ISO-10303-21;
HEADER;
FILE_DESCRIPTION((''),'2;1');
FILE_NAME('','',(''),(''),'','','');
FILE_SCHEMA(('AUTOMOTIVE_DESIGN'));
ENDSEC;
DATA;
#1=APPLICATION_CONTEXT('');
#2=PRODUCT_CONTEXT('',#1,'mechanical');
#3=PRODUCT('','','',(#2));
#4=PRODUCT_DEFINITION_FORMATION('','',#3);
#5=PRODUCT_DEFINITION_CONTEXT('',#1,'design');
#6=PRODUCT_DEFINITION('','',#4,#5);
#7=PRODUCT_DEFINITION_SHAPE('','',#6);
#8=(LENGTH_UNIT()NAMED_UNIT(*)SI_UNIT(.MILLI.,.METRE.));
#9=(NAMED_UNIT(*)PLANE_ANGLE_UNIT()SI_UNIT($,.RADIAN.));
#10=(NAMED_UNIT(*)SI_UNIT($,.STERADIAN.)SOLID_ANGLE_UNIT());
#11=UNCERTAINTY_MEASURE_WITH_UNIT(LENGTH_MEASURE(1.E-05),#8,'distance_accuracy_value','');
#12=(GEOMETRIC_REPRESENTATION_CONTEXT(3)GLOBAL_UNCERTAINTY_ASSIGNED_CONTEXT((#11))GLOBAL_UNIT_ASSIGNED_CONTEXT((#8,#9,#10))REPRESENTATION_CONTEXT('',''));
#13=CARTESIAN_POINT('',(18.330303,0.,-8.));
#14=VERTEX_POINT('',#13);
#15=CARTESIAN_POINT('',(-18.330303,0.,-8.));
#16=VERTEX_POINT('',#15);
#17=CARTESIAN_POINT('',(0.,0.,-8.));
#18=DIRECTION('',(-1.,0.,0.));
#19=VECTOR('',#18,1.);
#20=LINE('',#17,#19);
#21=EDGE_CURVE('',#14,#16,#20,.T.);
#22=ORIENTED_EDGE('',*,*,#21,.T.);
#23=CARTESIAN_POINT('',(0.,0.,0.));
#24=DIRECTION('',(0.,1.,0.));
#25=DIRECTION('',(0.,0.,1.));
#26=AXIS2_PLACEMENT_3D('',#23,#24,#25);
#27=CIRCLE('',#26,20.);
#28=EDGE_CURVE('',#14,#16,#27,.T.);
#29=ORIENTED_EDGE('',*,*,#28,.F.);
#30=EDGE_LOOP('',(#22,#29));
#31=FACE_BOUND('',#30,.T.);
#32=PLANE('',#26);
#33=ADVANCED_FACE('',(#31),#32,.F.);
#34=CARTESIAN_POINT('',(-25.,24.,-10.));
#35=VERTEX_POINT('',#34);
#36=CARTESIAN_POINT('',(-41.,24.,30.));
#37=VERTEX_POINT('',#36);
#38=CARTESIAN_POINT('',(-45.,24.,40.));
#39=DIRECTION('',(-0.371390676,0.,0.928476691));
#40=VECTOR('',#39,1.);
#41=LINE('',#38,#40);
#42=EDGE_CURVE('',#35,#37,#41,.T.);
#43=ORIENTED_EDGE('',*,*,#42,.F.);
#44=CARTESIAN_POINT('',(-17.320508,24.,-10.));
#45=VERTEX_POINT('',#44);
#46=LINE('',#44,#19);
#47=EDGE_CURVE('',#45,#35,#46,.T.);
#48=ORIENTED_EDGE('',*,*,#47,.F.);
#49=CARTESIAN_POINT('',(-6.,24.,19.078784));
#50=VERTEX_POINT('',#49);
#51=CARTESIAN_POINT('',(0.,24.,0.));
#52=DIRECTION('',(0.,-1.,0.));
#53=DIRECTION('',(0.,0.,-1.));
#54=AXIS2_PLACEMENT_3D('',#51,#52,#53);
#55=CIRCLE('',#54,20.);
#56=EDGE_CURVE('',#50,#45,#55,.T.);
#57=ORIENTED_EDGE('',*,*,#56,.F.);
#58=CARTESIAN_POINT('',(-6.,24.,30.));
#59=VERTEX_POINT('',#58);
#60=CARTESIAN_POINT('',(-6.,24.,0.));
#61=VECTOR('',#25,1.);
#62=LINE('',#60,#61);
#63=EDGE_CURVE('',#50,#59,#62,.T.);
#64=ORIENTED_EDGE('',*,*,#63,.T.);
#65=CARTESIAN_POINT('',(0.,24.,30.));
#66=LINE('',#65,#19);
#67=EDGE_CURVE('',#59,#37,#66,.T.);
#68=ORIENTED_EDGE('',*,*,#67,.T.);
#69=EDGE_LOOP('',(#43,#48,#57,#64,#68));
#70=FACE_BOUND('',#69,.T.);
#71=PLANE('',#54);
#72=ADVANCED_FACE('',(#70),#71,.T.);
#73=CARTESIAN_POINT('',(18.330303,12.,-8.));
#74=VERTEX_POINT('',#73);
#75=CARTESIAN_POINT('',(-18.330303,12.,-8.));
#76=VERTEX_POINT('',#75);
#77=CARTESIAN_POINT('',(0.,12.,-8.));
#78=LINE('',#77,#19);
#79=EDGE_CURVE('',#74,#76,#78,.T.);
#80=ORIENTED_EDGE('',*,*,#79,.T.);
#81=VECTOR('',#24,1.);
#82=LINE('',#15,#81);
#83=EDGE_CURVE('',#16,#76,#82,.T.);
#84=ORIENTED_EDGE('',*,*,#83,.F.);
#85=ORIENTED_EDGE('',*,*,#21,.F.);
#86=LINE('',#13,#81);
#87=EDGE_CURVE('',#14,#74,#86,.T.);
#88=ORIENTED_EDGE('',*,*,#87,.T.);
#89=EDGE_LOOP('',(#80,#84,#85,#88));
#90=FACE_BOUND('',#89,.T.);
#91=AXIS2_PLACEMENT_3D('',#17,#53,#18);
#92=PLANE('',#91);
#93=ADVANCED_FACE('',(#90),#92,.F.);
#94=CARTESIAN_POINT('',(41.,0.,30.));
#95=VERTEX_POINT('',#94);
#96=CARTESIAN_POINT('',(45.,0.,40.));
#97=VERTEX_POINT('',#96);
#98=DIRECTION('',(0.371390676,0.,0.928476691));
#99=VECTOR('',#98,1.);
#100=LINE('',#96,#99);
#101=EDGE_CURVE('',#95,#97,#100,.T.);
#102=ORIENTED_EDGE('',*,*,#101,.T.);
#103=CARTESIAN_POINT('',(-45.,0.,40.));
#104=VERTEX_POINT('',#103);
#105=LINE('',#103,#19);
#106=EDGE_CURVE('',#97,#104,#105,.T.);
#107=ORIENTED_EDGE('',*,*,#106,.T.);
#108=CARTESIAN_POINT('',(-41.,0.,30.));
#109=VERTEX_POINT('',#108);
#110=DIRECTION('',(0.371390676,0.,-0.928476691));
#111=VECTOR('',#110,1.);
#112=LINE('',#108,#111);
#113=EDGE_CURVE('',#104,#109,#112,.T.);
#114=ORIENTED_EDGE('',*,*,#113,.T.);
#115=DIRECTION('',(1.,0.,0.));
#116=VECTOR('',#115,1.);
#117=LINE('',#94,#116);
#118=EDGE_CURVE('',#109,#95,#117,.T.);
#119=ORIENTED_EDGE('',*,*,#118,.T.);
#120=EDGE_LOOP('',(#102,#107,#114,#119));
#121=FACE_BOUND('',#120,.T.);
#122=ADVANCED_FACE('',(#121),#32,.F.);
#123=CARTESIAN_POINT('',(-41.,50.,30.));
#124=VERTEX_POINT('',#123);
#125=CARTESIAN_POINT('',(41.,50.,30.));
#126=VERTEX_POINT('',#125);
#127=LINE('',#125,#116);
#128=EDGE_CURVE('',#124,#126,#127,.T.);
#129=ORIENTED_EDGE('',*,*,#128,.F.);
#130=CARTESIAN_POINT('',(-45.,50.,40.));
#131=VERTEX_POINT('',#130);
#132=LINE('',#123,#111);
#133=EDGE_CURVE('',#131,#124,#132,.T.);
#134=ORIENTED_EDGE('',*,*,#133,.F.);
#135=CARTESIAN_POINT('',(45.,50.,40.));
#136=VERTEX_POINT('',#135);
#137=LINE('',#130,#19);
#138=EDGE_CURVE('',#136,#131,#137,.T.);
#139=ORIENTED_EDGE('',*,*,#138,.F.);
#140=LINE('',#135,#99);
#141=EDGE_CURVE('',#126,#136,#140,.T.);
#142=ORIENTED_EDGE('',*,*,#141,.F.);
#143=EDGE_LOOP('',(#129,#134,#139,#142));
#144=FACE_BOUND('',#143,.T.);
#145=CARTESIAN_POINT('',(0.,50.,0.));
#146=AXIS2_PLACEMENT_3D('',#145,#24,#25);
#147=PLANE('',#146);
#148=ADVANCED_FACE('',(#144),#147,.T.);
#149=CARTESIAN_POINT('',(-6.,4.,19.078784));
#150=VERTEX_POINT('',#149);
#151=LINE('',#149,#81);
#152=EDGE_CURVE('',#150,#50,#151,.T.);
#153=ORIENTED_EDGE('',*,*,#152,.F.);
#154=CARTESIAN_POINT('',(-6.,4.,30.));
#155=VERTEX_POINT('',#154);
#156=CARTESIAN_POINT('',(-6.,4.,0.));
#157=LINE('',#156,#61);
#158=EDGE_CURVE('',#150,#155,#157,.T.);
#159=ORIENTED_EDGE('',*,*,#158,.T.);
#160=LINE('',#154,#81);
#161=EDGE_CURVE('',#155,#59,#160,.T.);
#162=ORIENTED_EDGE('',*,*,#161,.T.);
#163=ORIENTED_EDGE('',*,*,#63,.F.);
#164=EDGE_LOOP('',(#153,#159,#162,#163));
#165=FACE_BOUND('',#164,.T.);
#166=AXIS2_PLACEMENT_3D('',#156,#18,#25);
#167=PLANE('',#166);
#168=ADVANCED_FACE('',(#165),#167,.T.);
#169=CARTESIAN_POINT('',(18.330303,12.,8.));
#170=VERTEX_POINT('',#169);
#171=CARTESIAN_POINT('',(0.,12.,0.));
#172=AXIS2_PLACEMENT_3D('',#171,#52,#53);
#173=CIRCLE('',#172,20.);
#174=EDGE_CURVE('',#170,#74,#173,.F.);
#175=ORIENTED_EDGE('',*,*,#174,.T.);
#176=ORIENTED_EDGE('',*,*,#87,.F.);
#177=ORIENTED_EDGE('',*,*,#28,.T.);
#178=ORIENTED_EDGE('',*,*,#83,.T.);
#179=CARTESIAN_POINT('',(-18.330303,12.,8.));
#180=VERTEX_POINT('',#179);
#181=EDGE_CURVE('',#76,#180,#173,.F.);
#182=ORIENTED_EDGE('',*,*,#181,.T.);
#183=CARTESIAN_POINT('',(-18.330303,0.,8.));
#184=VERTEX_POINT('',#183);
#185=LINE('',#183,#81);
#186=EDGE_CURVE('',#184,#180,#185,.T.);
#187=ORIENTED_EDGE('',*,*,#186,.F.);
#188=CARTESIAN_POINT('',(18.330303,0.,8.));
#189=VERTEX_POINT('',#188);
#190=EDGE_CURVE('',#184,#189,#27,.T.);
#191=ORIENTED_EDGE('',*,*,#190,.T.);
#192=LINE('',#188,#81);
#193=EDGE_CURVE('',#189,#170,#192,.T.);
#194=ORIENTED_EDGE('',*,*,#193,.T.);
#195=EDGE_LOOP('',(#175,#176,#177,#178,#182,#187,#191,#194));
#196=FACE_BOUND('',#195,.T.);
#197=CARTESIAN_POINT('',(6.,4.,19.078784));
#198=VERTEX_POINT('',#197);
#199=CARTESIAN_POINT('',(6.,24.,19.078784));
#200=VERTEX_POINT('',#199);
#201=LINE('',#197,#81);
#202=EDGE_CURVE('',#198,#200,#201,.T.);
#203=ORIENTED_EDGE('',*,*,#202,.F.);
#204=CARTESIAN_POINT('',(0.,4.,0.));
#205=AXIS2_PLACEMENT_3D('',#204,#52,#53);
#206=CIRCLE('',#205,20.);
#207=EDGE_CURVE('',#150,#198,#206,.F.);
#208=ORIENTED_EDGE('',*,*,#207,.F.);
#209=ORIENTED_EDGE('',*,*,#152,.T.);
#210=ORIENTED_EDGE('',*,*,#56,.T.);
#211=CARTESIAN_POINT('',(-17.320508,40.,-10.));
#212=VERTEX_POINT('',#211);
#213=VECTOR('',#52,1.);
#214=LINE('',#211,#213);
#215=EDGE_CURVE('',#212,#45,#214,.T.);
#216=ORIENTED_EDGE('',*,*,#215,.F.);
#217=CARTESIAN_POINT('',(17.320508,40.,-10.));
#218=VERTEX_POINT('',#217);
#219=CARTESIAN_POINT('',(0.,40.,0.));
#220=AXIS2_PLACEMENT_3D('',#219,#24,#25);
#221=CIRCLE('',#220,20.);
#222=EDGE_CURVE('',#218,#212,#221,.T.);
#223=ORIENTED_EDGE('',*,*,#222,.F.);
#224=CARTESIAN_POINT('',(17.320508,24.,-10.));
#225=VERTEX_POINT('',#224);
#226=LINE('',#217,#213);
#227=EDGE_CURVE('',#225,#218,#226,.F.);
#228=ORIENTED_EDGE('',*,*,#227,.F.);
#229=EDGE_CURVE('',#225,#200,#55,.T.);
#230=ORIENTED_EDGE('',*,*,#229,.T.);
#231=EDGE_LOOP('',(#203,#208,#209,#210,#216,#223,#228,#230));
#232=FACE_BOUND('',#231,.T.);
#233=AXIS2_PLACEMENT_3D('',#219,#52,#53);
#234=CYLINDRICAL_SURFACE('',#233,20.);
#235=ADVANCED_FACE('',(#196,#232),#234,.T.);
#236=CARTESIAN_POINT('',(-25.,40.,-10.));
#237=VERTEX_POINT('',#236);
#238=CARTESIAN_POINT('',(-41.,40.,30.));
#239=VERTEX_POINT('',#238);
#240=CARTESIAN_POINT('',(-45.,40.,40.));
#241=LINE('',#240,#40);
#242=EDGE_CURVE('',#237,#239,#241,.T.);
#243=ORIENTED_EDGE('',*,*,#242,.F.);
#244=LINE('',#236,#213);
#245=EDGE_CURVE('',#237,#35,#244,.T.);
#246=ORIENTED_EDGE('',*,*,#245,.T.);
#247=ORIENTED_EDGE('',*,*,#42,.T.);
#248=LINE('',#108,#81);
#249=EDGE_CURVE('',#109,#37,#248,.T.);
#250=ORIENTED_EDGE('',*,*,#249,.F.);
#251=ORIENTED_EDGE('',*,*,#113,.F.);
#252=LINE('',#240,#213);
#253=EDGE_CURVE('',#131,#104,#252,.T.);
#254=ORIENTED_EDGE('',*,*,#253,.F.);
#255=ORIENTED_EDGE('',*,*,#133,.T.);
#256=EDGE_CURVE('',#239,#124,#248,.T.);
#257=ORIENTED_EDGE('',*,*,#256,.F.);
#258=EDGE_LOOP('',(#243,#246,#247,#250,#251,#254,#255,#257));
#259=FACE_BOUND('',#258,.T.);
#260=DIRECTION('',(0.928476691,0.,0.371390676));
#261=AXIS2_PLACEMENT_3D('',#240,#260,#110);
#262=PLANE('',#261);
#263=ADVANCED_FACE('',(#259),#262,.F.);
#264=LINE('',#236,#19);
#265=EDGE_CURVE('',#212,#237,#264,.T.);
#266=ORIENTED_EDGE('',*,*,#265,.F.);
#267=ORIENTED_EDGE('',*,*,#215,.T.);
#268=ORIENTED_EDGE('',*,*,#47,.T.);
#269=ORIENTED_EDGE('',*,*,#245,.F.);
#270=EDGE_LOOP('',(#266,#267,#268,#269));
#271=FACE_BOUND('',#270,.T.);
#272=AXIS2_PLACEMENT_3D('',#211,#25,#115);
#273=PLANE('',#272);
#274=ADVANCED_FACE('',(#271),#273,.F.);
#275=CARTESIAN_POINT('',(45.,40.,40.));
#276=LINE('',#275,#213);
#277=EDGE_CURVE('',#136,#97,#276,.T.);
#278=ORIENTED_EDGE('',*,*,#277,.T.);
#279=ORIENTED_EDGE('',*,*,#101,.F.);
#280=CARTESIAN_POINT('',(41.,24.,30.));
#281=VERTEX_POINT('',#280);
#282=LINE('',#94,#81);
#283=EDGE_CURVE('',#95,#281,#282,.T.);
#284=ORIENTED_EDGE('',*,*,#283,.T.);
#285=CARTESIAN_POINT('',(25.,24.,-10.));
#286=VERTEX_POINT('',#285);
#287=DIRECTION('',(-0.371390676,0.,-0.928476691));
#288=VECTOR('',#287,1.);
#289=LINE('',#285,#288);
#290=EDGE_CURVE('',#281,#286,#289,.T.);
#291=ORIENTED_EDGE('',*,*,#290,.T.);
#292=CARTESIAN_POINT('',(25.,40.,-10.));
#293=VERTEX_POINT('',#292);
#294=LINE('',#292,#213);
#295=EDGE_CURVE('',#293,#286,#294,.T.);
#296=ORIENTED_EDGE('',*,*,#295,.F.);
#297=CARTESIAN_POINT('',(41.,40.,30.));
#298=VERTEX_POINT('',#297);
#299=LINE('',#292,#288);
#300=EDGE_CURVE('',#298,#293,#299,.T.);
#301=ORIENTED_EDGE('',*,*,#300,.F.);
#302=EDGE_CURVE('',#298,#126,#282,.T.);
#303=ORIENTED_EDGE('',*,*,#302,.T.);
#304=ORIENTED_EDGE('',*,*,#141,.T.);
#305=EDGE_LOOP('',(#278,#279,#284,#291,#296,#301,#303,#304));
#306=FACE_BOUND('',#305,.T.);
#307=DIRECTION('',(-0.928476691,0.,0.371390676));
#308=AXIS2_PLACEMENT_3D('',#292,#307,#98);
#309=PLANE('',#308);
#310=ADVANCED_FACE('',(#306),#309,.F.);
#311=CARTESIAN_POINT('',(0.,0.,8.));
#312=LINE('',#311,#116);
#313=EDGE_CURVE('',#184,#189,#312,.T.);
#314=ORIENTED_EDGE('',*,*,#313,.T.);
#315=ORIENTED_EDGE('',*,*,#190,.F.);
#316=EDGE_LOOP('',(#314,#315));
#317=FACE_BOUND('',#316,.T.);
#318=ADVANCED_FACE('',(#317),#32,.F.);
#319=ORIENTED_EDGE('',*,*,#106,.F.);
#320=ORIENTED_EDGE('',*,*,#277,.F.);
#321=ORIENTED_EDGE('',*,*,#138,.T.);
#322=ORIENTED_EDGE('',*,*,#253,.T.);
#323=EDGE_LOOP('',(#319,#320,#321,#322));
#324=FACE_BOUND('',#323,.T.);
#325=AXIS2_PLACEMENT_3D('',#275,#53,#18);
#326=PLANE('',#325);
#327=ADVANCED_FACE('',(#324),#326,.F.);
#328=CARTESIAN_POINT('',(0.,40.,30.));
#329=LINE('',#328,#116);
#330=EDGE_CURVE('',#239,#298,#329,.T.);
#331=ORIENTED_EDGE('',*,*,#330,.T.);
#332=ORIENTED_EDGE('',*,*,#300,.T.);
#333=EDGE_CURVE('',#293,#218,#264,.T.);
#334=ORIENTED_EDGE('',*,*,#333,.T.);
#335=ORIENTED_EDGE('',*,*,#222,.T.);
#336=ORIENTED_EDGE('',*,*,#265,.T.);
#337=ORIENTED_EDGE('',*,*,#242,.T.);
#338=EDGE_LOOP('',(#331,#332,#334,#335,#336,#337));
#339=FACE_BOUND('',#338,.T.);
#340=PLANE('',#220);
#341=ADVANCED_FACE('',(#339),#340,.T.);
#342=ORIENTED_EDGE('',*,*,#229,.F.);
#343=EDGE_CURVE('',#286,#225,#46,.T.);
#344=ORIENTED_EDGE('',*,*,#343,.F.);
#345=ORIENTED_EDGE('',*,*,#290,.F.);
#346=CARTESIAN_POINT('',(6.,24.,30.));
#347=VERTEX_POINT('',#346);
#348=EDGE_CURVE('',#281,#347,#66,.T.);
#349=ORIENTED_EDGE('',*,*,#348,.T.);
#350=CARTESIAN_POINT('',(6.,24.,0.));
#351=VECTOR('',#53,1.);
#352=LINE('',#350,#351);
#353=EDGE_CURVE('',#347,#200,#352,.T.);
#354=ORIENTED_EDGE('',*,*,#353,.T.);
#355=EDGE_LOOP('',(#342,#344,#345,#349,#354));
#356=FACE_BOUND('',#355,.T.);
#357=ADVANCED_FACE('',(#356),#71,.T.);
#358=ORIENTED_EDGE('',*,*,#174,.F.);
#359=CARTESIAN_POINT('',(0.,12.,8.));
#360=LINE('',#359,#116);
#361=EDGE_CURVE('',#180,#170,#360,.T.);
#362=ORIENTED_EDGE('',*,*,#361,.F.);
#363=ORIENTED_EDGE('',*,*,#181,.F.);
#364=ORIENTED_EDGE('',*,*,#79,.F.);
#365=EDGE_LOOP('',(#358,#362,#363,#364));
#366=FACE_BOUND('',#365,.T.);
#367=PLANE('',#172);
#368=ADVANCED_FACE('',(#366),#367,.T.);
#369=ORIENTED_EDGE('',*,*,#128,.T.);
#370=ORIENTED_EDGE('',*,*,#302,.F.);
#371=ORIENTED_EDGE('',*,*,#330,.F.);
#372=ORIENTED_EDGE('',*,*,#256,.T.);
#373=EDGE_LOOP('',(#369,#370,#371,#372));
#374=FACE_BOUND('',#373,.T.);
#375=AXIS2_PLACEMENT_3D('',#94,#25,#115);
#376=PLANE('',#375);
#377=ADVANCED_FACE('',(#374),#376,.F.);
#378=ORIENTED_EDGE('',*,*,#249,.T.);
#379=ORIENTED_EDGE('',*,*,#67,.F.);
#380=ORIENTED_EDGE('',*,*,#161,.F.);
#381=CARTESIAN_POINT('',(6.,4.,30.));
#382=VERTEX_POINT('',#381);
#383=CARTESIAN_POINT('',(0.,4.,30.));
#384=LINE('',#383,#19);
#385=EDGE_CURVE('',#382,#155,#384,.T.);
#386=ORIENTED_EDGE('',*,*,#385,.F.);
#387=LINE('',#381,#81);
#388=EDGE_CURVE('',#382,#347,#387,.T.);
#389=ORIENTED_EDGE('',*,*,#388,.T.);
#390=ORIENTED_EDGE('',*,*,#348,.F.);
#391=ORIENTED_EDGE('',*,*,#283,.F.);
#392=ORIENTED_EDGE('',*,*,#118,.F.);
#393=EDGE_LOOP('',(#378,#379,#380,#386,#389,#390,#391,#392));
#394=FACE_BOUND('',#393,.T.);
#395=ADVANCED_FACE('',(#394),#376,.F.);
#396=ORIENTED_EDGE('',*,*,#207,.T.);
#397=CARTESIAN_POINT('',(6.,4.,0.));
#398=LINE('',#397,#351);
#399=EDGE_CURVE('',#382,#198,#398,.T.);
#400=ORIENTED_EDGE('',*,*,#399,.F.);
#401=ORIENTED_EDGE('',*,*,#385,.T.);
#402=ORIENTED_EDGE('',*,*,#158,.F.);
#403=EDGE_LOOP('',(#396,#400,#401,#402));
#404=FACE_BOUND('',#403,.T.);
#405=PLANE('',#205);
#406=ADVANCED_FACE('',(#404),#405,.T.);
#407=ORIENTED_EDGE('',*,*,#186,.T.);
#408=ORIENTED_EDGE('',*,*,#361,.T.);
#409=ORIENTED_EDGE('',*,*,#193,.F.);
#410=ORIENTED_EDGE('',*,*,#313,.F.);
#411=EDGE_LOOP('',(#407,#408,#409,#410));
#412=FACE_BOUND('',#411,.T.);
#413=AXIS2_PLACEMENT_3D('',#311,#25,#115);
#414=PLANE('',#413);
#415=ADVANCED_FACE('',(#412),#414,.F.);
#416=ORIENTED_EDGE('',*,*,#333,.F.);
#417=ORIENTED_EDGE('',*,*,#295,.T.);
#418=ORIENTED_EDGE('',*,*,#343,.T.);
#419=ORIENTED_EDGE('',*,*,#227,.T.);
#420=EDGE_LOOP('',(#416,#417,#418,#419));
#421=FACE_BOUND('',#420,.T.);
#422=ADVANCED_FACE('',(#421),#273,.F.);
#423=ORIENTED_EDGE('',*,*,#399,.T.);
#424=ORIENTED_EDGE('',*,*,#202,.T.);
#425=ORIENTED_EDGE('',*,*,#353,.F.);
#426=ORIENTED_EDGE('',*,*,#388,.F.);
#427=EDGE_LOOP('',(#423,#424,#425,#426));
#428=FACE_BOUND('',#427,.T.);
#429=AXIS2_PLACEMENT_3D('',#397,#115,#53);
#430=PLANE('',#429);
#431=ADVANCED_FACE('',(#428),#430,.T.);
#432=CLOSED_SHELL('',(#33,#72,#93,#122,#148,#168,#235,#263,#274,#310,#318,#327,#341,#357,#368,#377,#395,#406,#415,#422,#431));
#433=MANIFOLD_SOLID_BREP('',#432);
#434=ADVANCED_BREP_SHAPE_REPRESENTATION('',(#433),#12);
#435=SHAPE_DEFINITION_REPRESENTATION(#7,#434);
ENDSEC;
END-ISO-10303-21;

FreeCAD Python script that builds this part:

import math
import FreeCAD as App
import Part
import Sketcher
from FreeCAD import Vector
Q = App.Units.Quantity

doc = App.newDocument("Part")
body = doc.addObject("PartDesign::Body", "Body")

sketch1 = doc.addObject("Sketcher::SketchObject", "Sketch")
body.addObject(sketch1)
sketch1.AttachmentSupport = (doc.XZ_Plane, [""])
sketch1.MapMode = "FlatFace"
sketch1.addGeometry(Part.Circle(Vector(0, 0, 0), Vector(0, 0, 1), 20), False)
sketch1.addConstraint([
    Sketcher.Constraint("Coincident", 0, 3, -1, 1),
    Sketcher.Constraint("Diameter", 0, Q("40 mm")),
])
pad1 = doc.addObject("PartDesign::Pad", "Pad")
body.addObject(pad1)
pad1.Profile = sketch1
pad1.Length = 40
pad1.Reversed = True

sketch2 = doc.addObject("Sketcher::SketchObject", "Sketch001")
body.addObject(sketch2)
sketch2.AttachmentSupport = (doc.XZ_Plane, [""])
sketch2.MapMode = "FlatFace"
sketch2.AttachmentOffset = App.Placement(Vector(0, 0, -24), App.Rotation())
sketch2.addGeometry([
    Part.LineSegment(Vector(45, 40, 0), Vector(25, -10, 0)),
    Part.LineSegment(Vector(25, -10, 0), Vector(-25, -10, 0)),
    Part.LineSegment(Vector(-25, -10, 0), Vector(-45, 40, 0)),
    Part.LineSegment(Vector(-45, 40, 0), Vector(45, 40, 0)),
], False)
sketch2.addConstraint([
    Sketcher.Constraint("Coincident", 0, 2, 1, 1),
    Sketcher.Constraint("Coincident", 1, 2, 2, 1),
    Sketcher.Constraint("Coincident", 2, 2, 3, 1),
    Sketcher.Constraint("Coincident", 3, 2, 0, 1),
    Sketcher.Constraint("Horizontal", 1),
    Sketcher.Constraint("Horizontal", 3),
    Sketcher.Constraint("Equal", 0, 2),
    Sketcher.Constraint("DistanceX", 1, 2, 1, 1, Q("50 mm")),
    Sketcher.Constraint("DistanceX", 3, 1, 3, 2, Q("90 mm")),
    Sketcher.Constraint("DistanceX", -1, 1, 0, 2, Q("25 mm")),
    Sketcher.Constraint("DistanceY", 0, 2, -1, 1, Q("10 mm")),
    Sketcher.Constraint("DistanceY", -1, 1, 2, 2, Q("40 mm")),
])
pad2 = doc.addObject("PartDesign::Pad", "Pad001")
body.addObject(pad2)
pad2.Profile = sketch2
pad2.Length = 16
pad2.Reversed = True

sketch3 = doc.addObject("Sketcher::SketchObject", "Sketch002")
body.addObject(sketch3)
sketch3.AttachmentSupport = (doc.XZ_Plane, [""])
sketch3.MapMode = "FlatFace"
sketch3.AttachmentOffset = App.Placement(Vector(0, 0, -50), App.Rotation())
sketch3.addGeometry([
    Part.LineSegment(Vector(-41, 30, 0), Vector(41, 30, 0)),
    Part.LineSegment(Vector(41, 30, 0), Vector(45, 40, 0)),
    Part.LineSegment(Vector(45, 40, 0), Vector(-45, 40, 0)),
    Part.LineSegment(Vector(-45, 40, 0), Vector(-41, 30, 0)),
], False)
sketch3.addConstraint([
    Sketcher.Constraint("Coincident", 0, 2, 1, 1),
    Sketcher.Constraint("Coincident", 1, 2, 2, 1),
    Sketcher.Constraint("Coincident", 2, 2, 3, 1),
    Sketcher.Constraint("Coincident", 3, 2, 0, 1),
    Sketcher.Constraint("Horizontal", 0),
    Sketcher.Constraint("Horizontal", 2),
    Sketcher.Constraint("Equal", 1, 3),
    Sketcher.Constraint("DistanceX", 0, 1, 0, 2, Q("82 mm")),
    Sketcher.Constraint("DistanceX", 2, 2, 2, 1, Q("90 mm")),
    Sketcher.Constraint("DistanceX", -1, 1, 0, 2, Q("41 mm")),
    Sketcher.Constraint("DistanceY", -1, 1, 0, 2, Q("30 mm")),
    Sketcher.Constraint("DistanceY", -1, 1, 1, 2, Q("40 mm")),
])
pad3 = doc.addObject("PartDesign::Pad", "Pad002")
body.addObject(pad3)
pad3.Profile = sketch3
pad3.Length = 50

sketch4 = doc.addObject("Sketcher::SketchObject", "Sketch003")
body.addObject(sketch4)
sketch4.AttachmentSupport = (doc.XZ_Plane, [""])
sketch4.MapMode = "FlatFace"
sketch4.AttachmentOffset = App.Placement(Vector(0, 0, -24), App.Rotation())
sketch4.addGeometry([
    Part.LineSegment(Vector(6, 19, 0), Vector(6, 30, 0)),
    Part.LineSegment(Vector(6, 30, 0), Vector(-6, 30, 0)),
    Part.LineSegment(Vector(-6, 30, 0), Vector(-6, 19, 0)),
    Part.ArcOfCircle(Part.Circle(Vector(0, 0, 0), Vector(0, 0, 1), 20), math.radians(73), math.radians(107)),
], False)
sketch4.addConstraint([
    Sketcher.Constraint("Coincident", 0, 2, 1, 1),
    Sketcher.Constraint("Coincident", 1, 2, 2, 1),
    Sketcher.Constraint("Coincident", 2, 2, 3, 2),
    Sketcher.Constraint("Coincident", 3, 1, 0, 1),
    Sketcher.Constraint("Vertical", 0),
    Sketcher.Constraint("Horizontal", 1),
    Sketcher.Constraint("Vertical", 2),
    Sketcher.Constraint("Coincident", 3, 3, -1, 1),
    Sketcher.Constraint("Horizontal", 2, 2, 3, 1),
    Sketcher.Constraint("Radius", 3, Q("20 mm")),
    Sketcher.Constraint("DistanceX", 1, 2, 1, 1, Q("12 mm")),
    Sketcher.Constraint("DistanceY", -1, 1, 0, 2, Q("30 mm")),
])
pad4 = doc.addObject("PartDesign::Pad", "Pad003")
body.addObject(pad4)
pad4.Profile = sketch4
pad4.Length = 20

sketch5 = doc.addObject("Sketcher::SketchObject", "Sketch004")
body.addObject(sketch5)
sketch5.AttachmentSupport = (doc.XZ_Plane, [""])
sketch5.MapMode = "FlatFace"
sketch5.AttachmentOffset = App.Placement(Vector(0, 0, -12), App.Rotation())
sketch5.addGeometry([
    Part.ArcOfCircle(Part.Circle(Vector(0, 0, 0), Vector(0, 0, 1), 20), math.radians(-24), math.radians(24)),
    Part.LineSegment(Vector(18, 8, 0), Vector(-18, 8, 0)),
    Part.ArcOfCircle(Part.Circle(Vector(0, 0, 0), Vector(0, 0, 1), 20), math.radians(156), math.radians(204)),
    Part.LineSegment(Vector(-18, -8, 0), Vector(18, -8, 0)),
], False)
sketch5.addConstraint([
    Sketcher.Constraint("Coincident", 0, 2, 1, 1),
    Sketcher.Constraint("Coincident", 1, 2, 2, 1),
    Sketcher.Constraint("Coincident", 2, 2, 3, 1),
    Sketcher.Constraint("Coincident", 3, 2, 0, 1),
    Sketcher.Constraint("Horizontal", 1),
    Sketcher.Constraint("Horizontal", 3),
    Sketcher.Constraint("Coincident", 0, 3, -1, 1),
    Sketcher.Constraint("Coincident", 2, 3, -1, 1),
    Sketcher.Constraint("Equal", 0, 2),
    Sketcher.Constraint("Vertical", 1, 2, 2, 2),
    Sketcher.Constraint("Radius", 0, Q("20 mm")),
    Sketcher.Constraint("DistanceY", -1, 1, 0, 2, Q("8 mm")),
])
pocket1 = doc.addObject("PartDesign::Pocket", "Pocket")
body.addObject(pocket1)
pocket1.Profile = sketch5
pocket1.Length = 12
pocket1.Reversed = True

doc.recompute()
